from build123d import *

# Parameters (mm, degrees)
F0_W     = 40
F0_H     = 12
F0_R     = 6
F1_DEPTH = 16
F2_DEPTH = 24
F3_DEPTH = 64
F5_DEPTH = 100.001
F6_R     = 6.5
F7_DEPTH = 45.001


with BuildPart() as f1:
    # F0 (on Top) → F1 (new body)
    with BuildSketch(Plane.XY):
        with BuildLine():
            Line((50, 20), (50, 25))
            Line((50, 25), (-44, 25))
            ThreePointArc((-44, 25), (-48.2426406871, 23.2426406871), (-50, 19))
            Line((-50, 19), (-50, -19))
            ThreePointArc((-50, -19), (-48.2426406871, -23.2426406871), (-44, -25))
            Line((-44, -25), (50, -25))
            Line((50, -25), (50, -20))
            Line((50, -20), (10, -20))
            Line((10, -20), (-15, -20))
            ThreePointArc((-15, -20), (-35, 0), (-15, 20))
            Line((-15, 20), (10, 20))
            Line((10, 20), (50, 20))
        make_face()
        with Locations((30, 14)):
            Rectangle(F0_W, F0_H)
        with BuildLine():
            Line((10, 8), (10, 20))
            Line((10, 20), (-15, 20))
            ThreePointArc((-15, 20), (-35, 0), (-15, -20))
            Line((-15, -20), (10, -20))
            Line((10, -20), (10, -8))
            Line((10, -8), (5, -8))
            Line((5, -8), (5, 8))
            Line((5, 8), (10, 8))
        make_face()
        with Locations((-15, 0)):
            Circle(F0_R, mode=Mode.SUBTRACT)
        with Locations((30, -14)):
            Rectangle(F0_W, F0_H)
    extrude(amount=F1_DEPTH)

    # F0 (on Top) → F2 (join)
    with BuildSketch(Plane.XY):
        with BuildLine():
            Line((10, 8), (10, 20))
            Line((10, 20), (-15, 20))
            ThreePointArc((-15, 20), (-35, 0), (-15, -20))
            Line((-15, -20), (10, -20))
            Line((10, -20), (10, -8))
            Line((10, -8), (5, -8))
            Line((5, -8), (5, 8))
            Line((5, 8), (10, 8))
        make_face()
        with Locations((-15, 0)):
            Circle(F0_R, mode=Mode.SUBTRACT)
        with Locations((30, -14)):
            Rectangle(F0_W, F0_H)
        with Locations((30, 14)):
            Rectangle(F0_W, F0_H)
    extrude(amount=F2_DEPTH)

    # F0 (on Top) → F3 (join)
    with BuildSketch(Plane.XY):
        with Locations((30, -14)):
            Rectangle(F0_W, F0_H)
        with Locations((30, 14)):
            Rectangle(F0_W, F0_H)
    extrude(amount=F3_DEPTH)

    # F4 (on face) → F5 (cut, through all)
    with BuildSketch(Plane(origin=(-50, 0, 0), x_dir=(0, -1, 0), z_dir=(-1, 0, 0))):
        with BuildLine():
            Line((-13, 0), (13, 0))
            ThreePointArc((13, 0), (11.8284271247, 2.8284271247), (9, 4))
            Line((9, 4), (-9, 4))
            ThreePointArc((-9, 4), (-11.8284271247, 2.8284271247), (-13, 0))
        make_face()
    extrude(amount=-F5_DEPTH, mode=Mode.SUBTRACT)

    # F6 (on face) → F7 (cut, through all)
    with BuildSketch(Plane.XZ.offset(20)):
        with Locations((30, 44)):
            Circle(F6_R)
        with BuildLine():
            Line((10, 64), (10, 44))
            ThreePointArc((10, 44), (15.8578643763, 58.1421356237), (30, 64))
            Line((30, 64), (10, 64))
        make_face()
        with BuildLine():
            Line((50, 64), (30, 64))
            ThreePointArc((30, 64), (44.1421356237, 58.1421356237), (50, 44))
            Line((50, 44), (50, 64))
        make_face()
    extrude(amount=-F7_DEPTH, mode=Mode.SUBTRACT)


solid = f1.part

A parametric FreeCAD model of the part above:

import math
import FreeCAD as App
import Part
import Sketcher

V = App.Vector
Q = App.Units.Quantity

doc = App.newDocument("Part")
body = doc.addObject("PartDesign::Body", "Body")

# Sketch on XY plane
sketch1 = body.newObject("Sketcher::SketchObject", "Sketch")
sketch1.AttachmentSupport = (doc.getObject("XY_Plane"), [""])
sketch1.MapMode = "FlatFace"
sketch1.addGeometry([
    Part.LineSegment(V(50, 25, 0), V(-44, 25, 0)),  # 0
    Part.ArcOfCircle(Part.Circle(V(-44, 19, 0), V(0, 0, 1), 6), math.radians(90), math.radians(180)),  # 1
    Part.LineSegment(V(-50, 19, 0), V(-50, -19, 0)),  # 2
    Part.ArcOfCircle(Part.Circle(V(-44, -19, 0), V(0, 0, 1), 6), math.radians(180), math.radians(270)),  # 3
    Part.LineSegment(V(-44, -25, 0), V(50, -25, 0)),  # 4
    Part.LineSegment(V(50, -25, 0), V(50, -8, 0)),  # 5
    Part.LineSegment(V(50, -8, 0), V(5, -8, 0)),  # 6
    Part.LineSegment(V(5, -8, 0), V(5, 8, 0)),  # 7
    Part.LineSegment(V(5, 8, 0), V(50, 8, 0)),  # 8
    Part.LineSegment(V(50, 8, 0), V(50, 25, 0)),  # 9
    Part.Circle(V(-15, 0, 0), V(0, 0, 1), 6),  # 10
], False)
sketch1.addConstraint([
    Sketcher.Constraint("Tangent", 0, 2, 1, 1),
    Sketcher.Constraint("Tangent", 1, 2, 2, 1),
    Sketcher.Constraint("Tangent", 2, 2, 3, 1),
    Sketcher.Constraint("Tangent", 3, 2, 4, 1),
    Sketcher.Constraint("Coincident", 4, 2, 5, 1),
    Sketcher.Constraint("Coincident", 5, 2, 6, 1),
    Sketcher.Constraint("Coincident", 6, 2, 7, 1),
    Sketcher.Constraint("Coincident", 7, 2, 8, 1),
    Sketcher.Constraint("Coincident", 8, 2, 9, 1),
    Sketcher.Constraint("Coincident", 9, 2, 0, 1),
    Sketcher.Constraint("Horizontal", 0),
    Sketcher.Constraint("Vertical", 2),
    Sketcher.Constraint("Horizontal", 4),
    Sketcher.Constraint("Vertical", 5),
    Sketcher.Constraint("Horizontal", 6),
    Sketcher.Constraint("Vertical", 7),
    Sketcher.Constraint("Horizontal", 8),
    Sketcher.Constraint("Vertical", 9),
    Sketcher.Constraint("Equal", 1, 3),
    Sketcher.Constraint("Equal", 3, 10),
    Sketcher.Constraint("Symmetric", 5, 2, 8, 2, -1),
    Sketcher.Constraint("PointOnObject", 10, 3, -1),
    Sketcher.Constraint("Equal", 5, 9),
    Sketcher.Constraint("Diameter", 10, Q("12 mm")),
    Sketcher.Constraint("DistanceX", 0, 2, 0, 1, Q("94 mm")),
    Sketcher.Constraint("DistanceX", 6, 2, 6, 1, Q("45 mm")),
    Sketcher.Constraint("DistanceY", 2, 2, 2, 1, Q("38 mm")),
    Sketcher.Constraint("DistanceY", 5, 1, 5, 2, Q("17 mm")),
    Sketcher.Constraint("DistanceX", 1, 3, -1, 1, Q("44 mm")),
    Sketcher.Constraint("DistanceX", 10, 3, -1, 1, Q("15 mm")),
])
pad1 = body.newObject("PartDesign::Pad", "Pad")
pad1.Profile = sketch1
pad1.Length = 16

# Sketch on XY plane
sketch2 = body.newObject("Sketcher::SketchObject", "Sketch001")
sketch2.AttachmentSupport = (doc.getObject("XY_Plane"), [""])
sketch2.MapMode = "FlatFace"
sketch2.addGeometry([
    Part.ArcOfCircle(Part.Circle(V(-15, 0, 0), V(0, 0, 1), 20), math.radians(90), math.radians(270)),  # 0
    Part.LineSegment(V(-15, -20, 0), V(50, -20, 0)),  # 1
    Part.LineSegment(V(50, -20, 0), V(50, -8, 0)),  # 2
    Part.LineSegment(V(50, -8, 0), V(5, -8, 0)),  # 3
    Part.LineSegment(V(5, -8, 0), V(5, 8, 0)),  # 4
    Part.LineSegment(V(5, 8, 0), V(50, 8, 0)),  # 5
    Part.LineSegment(V(50, 8, 0), V(50, 20, 0)),  # 6
    Part.LineSegment(V(50, 20, 0), V(-15, 20, 0)),  # 7
    Part.Circle(V(-15, 0, 0), V(0, 0, 1), 6),  # 8
], False)
sketch2.addConstraint([
    Sketcher.Constraint("Tangent", 0, 2, 1, 1),
    Sketcher.Constraint("Coincident", 1, 2, 2, 1),
    Sketcher.Constraint("Coincident", 2, 2, 3, 1),
    Sketcher.Constraint("Coincident", 3, 2, 4, 1),
    Sketcher.Constraint("Coincident", 4, 2, 5, 1),
    Sketcher.Constraint("Coincident", 5, 2, 6, 1),
    Sketcher.Constraint("Coincident", 6, 2, 7, 1),
    Sketcher.Constraint("Tangent", 7, 2, 0, 1),
    Sketcher.Constraint("Horizontal", 1),
    Sketcher.Constraint("Vertical", 2),
    Sketcher.Constraint("Horizontal", 3),
    Sketcher.Constraint("Vertical", 4),
    Sketcher.Constraint("Horizontal", 5),
    Sketcher.Constraint("Vertical", 6),
    Sketcher.Constraint("Horizontal", 7),
    Sketcher.Constraint("Coincident", 8, 3, 0, 3),
    Sketcher.Constraint("Symmetric", 2, 2, 5, 2, -1),
    Sketcher.Constraint("PointOnObject", 0, 3, -1),
    Sketcher.Constraint("Diameter", 8, Q("12 mm")),
    Sketcher.Constraint("Radius", 0, Q("20 mm")),
    Sketcher.Constraint("DistanceX", 1, 1, 1, 2, Q("65 mm")),
    Sketcher.Constraint("DistanceX", 3, 2, 3, 1, Q("45 mm")),
    Sketcher.Constraint("DistanceY", 2, 1, 2, 2, Q("12 mm")),
    Sketcher.Constraint("DistanceX", 0, 3, -1, 1, Q("15 mm")),
])
pad2 = body.newObject("PartDesign::Pad", "Pad001")
pad2.Profile = sketch2
pad2.Length = 24

# Sketch on XY plane
sketch3 = body.newObject("Sketcher::SketchObject", "Sketch002")
sketch3.AttachmentSupport = (doc.getObject("XY_Plane"), [""])
sketch3.MapMode = "FlatFace"
sketch3.addGeometry([
    Part.LineSegment(V(10, -8, 0), V(10, -20, 0)),  # 0
    Part.LineSegment(V(10, -20, 0), V(50, -20, 0)),  # 1
    Part.LineSegment(V(50, -20, 0), V(50, -8, 0)),  # 2
    Part.LineSegment(V(50, -8, 0), V(10, -8, 0)),  # 3
    Part.LineSegment(V(10, 20, 0), V(10, 8, 0)),  # 4
    Part.LineSegment(V(10, 8, 0), V(50, 8, 0)),  # 5
    Part.LineSegment(V(50, 8, 0), V(50, 20, 0)),  # 6
    Part.LineSegment(V(50, 20, 0), V(10, 20, 0)),  # 7
], False)
sketch3.addConstraint([
    Sketcher.Constraint("Coincident", 0, 2, 1, 1),
    Sketcher.Constraint("Coincident", 1, 2, 2, 1),
    Sketcher.Constraint("Coincident", 2, 2, 3, 1),
    Sketcher.Constraint("Coincident", 3, 2, 0, 1),
    Sketcher.Constraint("Coincident", 4, 2, 5, 1),
    Sketcher.Constraint("Coincident", 5, 2, 6, 1),
    Sketcher.Constraint("Coincident", 6, 2, 7, 1),
    Sketcher.Constraint("Coincident", 7, 2, 4, 1),
    Sketcher.Constraint("Vertical", 0),
    Sketcher.Constraint("Horizontal", 1),
    Sketcher.Constraint("Vertical", 2),
    Sketcher.Constraint("Horizontal", 3),
    Sketcher.Constraint("Vertical", 4),
    Sketcher.Constraint("Horizontal", 5),
    Sketcher.Constraint("Vertical", 6),
    Sketcher.Constraint("Horizontal", 7),
    Sketcher.Constraint("Symmetric", 3, 2, 4, 2, -1),
    Sketcher.Constraint("Symmetric", 1, 2, 6, 2, -1),
    Sketcher.Constraint("DistanceX", 1, 1, 1, 2, Q("40 mm")),
    Sketcher.Constraint("DistanceY", 0, 2, 0, 1, Q("12 mm")),
    Sketcher.Constraint("DistanceX", -1, 1, 0, 2, Q("10 mm")),
    Sketcher.Constraint("DistanceY", 0, 2, -1, 1, Q("20 mm")),
])
pad3 = body.newObject("PartDesign::Pad", "Pad002")
pad3.Profile = sketch3
pad3.Length = 64

# Sketch on YZ plane
sketch4 = body.newObject("Sketcher::SketchObject", "Sketch003")
sketch4.AttachmentSupport = (doc.getObject("YZ_Plane"), [""])
sketch4.MapMode = "FlatFace"
sketch4.AttachmentOffset = App.Placement(V(0, 0, -50), App.Rotation())
sketch4.addGeometry([
    Part.LineSegment(V(13, 0, 0), V(-13, 0, 0)),
    Part.ArcOfCircle(Part.Circle(V(-9, 0, 0), V(0, 0, 1), 4), math.radians(90), math.radians(180)),
    Part.LineSegment(V(-9, 4, 0), V(9, 4, 0)),
    Part.ArcOfCircle(Part.Circle(V(9, 0, 0), V(0, 0, 1), 4), math.radians(0), math.radians(90)),
], False)
sketch4.addConstraint([
    Sketcher.Constraint("Coincident", 0, 2, 1, 2),
    Sketcher.Constraint("Tangent", 1, 1, 2, 1),
    Sketcher.Constraint("Tangent", 2, 2, 3, 2),
    Sketcher.Constraint("Coincident", 3, 1, 0, 1),
    Sketcher.Constraint("Horizontal", 0),
    Sketcher.Constraint("Horizontal", 2),
    Sketcher.Constraint("Equal", 1, 3),
    Sketcher.Constraint("Symmetric", 1, 3, 3, 3, -1, 1),
    Sketcher.Constraint("PointOnObject", 0, 2, -1),
    Sketcher.Constraint("Radius", 1, Q("4 mm")),
    Sketcher.Constraint("DistanceX", 0, 2, 0, 1, Q("26 mm")),
])
pocket1 = body.newObject("PartDesign::Pocket", "Pocket")
pocket1.Profile = sketch4
pocket1.Type = "ThroughAll"
pocket1.Reversed = True

# Sketch on XZ plane
sketch5 = body.newObject("Sketcher::SketchObject", "Sketch004")
sketch5.AttachmentSupport = (doc.getObject("XZ_Plane"), [""])
sketch5.MapMode = "FlatFace"
sketch5.AttachmentOffset = App.Placement(V(0, 0, 20), App.Rotation())
sketch5.addGeometry([
    Part.Circle(V(30, 44, 0), V(0, 0, 1), 6),  # 0
    Part.LineSegment(V(10, 64, 0), V(10, 44, 0)),  # 1
    Part.ArcOfCircle(Part.Circle(V(30, 44, 0), V(0, 0, 1), 20), math.radians(90), math.radians(180)),  # 2
    Part.LineSegment(V(30, 64, 0), V(10, 64, 0)),  # 3
    Part.LineSegment(V(50, 64, 0), V(30, 64, 0)),  # 4
    Part.ArcOfCircle(Part.Circle(V(30, 44, 0), V(0, 0, 1), 20), math.radians(0), math.radians(90)),  # 5
    Part.LineSegment(V(50, 44, 0), V(50, 64, 0)),  # 6
], False)
sketch5.addConstraint([
    Sketcher.Constraint("Tangent", 1, 2, 2, 2),
    Sketcher.Constraint("Tangent", 2, 1, 3, 1),
    Sketcher.Constraint("Coincident", 3, 2, 1, 1),
    Sketcher.Constraint("Tangent", 4, 2, 5, 2),
    Sketcher.Constraint("Tangent", 5, 1, 6, 1),
    Sketcher.Constraint("Coincident", 6, 2, 4, 1),
    Sketcher.Constraint("Vertical", 1),
    Sketcher.Constraint("Horizontal", 3),
    Sketcher.Constraint("Horizontal", 4),
    Sketcher.Constraint("Vertical", 6),
    Sketcher.Constraint("Coincident", 2, 3, 0, 3),
    Sketcher.Constraint("Coincident", 5, 3, 0, 3),
    Sketcher.Constraint("Equal", 2, 5),
    Sketcher.Constraint("Diameter", 0, Q("13 mm")),
    Sketcher.Constraint("Radius", 2, Q("20 mm")),
    Sketcher.Constraint("DistanceX", -1, 1, 0, 3, Q("30 mm")),
    Sketcher.Constraint("DistanceY", -1, 1, 0, 3, Q("44 mm")),
])
pocket2 = body.newObject("PartDesign::Pocket", "Pocket001")
pocket2.Profile = sketch5
pocket2.Type = "ThroughAll"

doc.recompute()
